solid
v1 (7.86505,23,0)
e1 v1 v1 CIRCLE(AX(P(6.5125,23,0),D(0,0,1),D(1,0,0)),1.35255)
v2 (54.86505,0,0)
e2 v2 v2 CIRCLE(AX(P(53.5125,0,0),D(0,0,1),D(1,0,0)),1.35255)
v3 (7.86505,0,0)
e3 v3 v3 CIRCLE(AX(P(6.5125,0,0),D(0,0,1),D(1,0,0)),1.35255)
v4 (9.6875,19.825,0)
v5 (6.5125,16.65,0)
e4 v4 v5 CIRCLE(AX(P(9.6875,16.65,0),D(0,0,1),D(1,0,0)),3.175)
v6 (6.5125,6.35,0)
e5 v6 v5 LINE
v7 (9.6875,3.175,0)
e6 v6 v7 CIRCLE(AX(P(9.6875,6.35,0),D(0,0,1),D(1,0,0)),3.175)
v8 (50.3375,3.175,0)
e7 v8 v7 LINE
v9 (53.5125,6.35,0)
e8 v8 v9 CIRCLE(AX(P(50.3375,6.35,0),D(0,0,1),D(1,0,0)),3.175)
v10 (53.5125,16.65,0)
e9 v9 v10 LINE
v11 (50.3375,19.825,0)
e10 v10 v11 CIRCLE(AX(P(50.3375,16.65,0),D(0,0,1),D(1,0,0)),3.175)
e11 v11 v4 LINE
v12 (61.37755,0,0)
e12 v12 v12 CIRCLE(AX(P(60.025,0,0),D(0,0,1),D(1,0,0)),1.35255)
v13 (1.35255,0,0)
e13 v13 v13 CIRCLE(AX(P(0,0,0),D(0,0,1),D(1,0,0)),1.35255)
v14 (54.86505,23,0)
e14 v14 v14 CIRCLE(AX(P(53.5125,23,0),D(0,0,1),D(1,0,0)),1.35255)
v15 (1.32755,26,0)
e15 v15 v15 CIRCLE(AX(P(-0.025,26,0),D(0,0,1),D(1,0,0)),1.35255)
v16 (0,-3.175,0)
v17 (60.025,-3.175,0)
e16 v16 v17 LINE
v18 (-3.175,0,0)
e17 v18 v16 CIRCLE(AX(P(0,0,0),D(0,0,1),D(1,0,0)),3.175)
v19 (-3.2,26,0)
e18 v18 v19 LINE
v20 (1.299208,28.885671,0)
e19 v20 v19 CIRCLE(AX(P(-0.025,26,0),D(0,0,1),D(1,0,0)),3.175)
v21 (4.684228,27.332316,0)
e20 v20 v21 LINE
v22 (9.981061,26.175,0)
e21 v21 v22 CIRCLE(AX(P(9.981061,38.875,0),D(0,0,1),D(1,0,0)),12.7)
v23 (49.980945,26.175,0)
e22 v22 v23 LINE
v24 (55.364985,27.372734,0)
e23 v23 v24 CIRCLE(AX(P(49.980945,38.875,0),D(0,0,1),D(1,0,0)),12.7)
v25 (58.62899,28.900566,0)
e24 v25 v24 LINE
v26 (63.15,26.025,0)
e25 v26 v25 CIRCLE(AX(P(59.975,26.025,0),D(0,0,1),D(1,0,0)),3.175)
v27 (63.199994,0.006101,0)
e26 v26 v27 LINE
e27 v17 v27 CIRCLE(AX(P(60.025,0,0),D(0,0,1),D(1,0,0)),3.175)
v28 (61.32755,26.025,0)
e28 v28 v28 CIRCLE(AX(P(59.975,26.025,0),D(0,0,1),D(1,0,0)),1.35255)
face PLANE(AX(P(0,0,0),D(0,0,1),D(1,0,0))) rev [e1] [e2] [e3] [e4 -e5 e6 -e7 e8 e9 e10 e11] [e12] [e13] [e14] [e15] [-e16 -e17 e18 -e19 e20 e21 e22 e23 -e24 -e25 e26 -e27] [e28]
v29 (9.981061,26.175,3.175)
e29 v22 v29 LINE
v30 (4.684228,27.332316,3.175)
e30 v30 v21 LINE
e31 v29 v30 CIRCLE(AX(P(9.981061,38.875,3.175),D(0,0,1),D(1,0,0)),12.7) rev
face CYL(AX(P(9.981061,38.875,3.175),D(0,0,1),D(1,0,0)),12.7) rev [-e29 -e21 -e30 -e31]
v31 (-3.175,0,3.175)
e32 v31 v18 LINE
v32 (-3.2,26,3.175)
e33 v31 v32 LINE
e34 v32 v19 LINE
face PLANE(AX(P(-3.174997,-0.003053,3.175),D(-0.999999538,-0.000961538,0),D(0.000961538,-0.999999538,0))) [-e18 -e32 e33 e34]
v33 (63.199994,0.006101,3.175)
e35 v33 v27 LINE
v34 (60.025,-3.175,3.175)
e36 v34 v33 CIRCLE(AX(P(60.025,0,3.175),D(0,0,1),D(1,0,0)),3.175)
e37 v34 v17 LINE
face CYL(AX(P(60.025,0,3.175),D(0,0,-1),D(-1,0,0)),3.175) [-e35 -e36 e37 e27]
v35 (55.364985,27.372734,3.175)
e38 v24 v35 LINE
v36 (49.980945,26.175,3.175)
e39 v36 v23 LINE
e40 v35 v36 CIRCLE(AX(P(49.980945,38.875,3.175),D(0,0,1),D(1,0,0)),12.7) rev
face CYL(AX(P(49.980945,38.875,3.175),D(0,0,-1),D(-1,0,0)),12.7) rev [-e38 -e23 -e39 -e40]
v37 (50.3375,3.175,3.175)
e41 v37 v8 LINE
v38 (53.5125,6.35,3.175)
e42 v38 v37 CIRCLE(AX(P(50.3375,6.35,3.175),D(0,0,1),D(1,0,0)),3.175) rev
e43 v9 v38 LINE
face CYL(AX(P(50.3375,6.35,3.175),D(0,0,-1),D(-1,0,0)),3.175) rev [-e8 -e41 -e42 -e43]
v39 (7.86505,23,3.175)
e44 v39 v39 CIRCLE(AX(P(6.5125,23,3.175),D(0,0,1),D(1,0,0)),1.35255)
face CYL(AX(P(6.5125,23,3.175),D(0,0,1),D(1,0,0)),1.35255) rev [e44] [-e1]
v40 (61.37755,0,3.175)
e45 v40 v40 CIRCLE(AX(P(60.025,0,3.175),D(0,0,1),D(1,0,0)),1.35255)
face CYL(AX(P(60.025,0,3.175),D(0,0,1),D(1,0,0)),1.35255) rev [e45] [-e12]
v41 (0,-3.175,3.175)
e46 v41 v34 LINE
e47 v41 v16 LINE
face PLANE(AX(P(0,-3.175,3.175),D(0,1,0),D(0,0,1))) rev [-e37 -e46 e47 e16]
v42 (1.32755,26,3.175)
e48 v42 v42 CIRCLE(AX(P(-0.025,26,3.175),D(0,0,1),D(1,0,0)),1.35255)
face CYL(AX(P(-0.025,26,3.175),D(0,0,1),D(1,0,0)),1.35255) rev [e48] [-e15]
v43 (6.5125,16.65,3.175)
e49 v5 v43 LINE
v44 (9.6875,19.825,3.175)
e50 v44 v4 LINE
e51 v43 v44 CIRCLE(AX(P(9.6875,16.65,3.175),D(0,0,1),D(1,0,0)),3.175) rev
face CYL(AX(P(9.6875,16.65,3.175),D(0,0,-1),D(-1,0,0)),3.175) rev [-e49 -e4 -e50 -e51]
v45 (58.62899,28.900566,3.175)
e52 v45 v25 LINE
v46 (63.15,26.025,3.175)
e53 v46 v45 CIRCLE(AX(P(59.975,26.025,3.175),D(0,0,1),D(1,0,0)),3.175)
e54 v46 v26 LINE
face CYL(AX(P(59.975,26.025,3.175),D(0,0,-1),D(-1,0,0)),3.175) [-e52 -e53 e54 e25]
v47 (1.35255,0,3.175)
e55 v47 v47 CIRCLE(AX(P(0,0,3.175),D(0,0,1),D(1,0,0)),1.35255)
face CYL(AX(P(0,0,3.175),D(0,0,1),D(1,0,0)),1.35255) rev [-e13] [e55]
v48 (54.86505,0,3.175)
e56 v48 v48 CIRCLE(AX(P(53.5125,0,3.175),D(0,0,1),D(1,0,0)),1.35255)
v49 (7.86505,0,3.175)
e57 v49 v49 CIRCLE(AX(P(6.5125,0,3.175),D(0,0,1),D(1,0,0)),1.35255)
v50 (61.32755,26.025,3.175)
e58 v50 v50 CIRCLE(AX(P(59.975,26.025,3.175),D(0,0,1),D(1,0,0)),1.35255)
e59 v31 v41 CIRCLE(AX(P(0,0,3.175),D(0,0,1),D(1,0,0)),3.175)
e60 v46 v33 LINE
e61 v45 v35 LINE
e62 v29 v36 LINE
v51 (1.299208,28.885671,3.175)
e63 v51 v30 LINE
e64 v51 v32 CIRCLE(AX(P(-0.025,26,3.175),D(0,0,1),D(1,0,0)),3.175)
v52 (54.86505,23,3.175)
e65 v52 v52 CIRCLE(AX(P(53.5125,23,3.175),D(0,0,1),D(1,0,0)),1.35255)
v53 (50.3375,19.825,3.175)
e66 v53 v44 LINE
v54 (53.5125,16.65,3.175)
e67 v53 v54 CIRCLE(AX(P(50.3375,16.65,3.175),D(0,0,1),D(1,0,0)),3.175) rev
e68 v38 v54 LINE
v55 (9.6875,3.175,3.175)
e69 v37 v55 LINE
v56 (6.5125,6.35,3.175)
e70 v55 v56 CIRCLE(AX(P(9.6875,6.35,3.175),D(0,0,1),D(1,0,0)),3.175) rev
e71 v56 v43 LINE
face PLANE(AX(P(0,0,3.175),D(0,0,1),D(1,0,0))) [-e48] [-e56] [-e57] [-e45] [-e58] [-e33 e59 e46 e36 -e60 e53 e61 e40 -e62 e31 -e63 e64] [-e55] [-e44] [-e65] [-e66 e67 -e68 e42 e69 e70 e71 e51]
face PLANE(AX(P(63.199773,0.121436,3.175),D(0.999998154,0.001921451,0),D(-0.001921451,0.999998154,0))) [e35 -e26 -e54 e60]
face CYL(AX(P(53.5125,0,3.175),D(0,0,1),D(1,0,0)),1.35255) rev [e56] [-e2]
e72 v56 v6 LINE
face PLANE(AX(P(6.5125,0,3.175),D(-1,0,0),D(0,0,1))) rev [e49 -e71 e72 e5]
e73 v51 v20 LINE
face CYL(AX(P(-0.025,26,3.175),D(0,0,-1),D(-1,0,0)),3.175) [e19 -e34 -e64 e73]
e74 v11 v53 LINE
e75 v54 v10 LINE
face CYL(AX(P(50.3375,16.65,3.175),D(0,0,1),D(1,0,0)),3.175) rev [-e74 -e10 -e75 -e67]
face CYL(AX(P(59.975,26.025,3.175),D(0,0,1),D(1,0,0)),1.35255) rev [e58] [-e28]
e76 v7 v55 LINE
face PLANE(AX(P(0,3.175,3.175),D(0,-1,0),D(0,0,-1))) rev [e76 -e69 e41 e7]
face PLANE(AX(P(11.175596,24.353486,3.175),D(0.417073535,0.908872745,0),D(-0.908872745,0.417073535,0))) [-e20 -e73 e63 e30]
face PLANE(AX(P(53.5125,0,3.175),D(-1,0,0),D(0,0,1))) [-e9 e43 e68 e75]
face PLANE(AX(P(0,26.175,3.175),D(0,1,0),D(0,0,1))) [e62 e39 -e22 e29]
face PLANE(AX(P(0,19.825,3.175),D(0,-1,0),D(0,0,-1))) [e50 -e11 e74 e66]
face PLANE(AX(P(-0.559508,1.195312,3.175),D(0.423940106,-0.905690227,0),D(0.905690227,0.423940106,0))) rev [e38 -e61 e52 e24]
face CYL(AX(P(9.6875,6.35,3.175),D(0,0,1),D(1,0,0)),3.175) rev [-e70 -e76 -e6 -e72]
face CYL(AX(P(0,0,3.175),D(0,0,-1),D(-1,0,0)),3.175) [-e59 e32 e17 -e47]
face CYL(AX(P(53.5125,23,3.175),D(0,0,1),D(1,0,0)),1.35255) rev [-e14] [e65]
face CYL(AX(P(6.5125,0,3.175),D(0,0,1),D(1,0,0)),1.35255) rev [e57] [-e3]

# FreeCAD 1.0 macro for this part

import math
import FreeCAD as App
import Part
import Sketcher
Q = App.Units.Quantity


def edges_at(feature, points):
    """Names of the edges that pass closest to the given points."""
    edges = feature.Shape.Edges
    near = lambda p: min(range(len(edges)), key=lambda i: edges[i].distToShape(Part.Vertex(*p))[0])
    return sorted({f"Edge{near(p) + 1}" for p in points})

doc = App.newDocument("Part")
body = doc.addObject("PartDesign::Body", "Body")

sketch1 = body.newObject("Sketcher::SketchObject", "Sketch")
sketch1.AttachmentSupport = (doc.getObject("XY_Plane"), [""])
sketch1.MapMode = "FlatFace"
sketch1.addGeometry(Part.LineSegment(App.Vector(58.62899, 28.900566, 0), App.Vector(52.806189, 26.175, 0)), False)
sketch1.addGeometry(Part.LineSegment(App.Vector(52.806189, 26.175, 0), App.Vector(7.206212, 26.175, 0)), False)
sketch1.addGeometry(Part.LineSegment(App.Vector(7.206212, 26.175, 0), App.Vector(1.299208, 28.885671, 0)), False)
sketch1.addGeometry(Part.ArcOfCircle(Part.Circle(App.Vector(-0.025, 26, 0), App.Vector(0, 0, 1), 3.175), math.radians(65.350035), math.radians(180)), False)
sketch1.addGeometry(Part.LineSegment(App.Vector(-3.2, 26, 0), App.Vector(-3.175, 0, 0)), False)
sketch1.addGeometry(Part.ArcOfCircle(Part.Circle(App.Vector(0, 0, 0), App.Vector(0, 0, 1), 3.175), math.radians(-180), math.radians(-90)), False)
sketch1.addGeometry(Part.LineSegment(App.Vector(0, -3.175, 0), App.Vector(60.025, -3.175, 0)), False)
sketch1.addGeometry(Part.ArcOfCircle(Part.Circle(App.Vector(60.025, 0, 0), App.Vector(0, 0, 1), 3.175), math.radians(-90), math.radians(0.110091)), False)
sketch1.addGeometry(Part.LineSegment(App.Vector(63.199994, 0.006101, 0), App.Vector(63.15, 26.025, 0)), False)
sketch1.addGeometry(Part.ArcOfCircle(Part.Circle(App.Vector(59.975, 26.025, 0), App.Vector(0, 0, 1), 3.175), math.radians(0), math.radians(115.083594)), False)
sketch1.addGeometry(Part.LineSegment(App.Vector(53.5125, 3.175, 0), App.Vector(6.5125, 3.175, 0)), False)
sketch1.addGeometry(Part.LineSegment(App.Vector(6.5125, 3.175, 0), App.Vector(6.5125, 19.825, 0)), False)
sketch1.addGeometry(Part.LineSegment(App.Vector(6.5125, 19.825, 0), App.Vector(53.5125, 19.825, 0)), False)
sketch1.addGeometry(Part.LineSegment(App.Vector(53.5125, 19.825, 0), App.Vector(53.5125, 3.175, 0)), False)
sketch1.addConstraint(Sketcher.Constraint("Coincident", 0, 2, 1, 1))
sketch1.addConstraint(Sketcher.Constraint("Coincident", 1, 2, 2, 1))
sketch1.addConstraint(Sketcher.Constraint("Tangent", 2, 2, 3, 1))
sketch1.addConstraint(Sketcher.Constraint("Coincident", 3, 2, 4, 1))
sketch1.addConstraint(Sketcher.Constraint("Coincident", 4, 2, 5, 1))
sketch1.addConstraint(Sketcher.Constraint("Tangent", 5, 2, 6, 1))
sketch1.addConstraint(Sketcher.Constraint("Tangent", 6, 2, 7, 1))
sketch1.addConstraint(Sketcher.Constraint("Tangent", 7, 2, 8, 1))
sketch1.addConstraint(Sketcher.Constraint("Coincident", 8, 2, 9, 1))
sketch1.addConstraint(Sketcher.Constraint("Tangent", 9, 2, 0, 1))
sketch1.addConstraint(Sketcher.Constraint("Coincident", 10, 2, 11, 1))
sketch1.addConstraint(Sketcher.Constraint("Coincident", 11, 2, 12, 1))
sketch1.addConstraint(Sketcher.Constraint("Coincident", 12, 2, 13, 1))
sketch1.addConstraint(Sketcher.Constraint("Coincident", 13, 2, 10, 1))
sketch1.addConstraint(Sketcher.Constraint("Horizontal", 1))
sketch1.addConstraint(Sketcher.Constraint("Horizontal", 6))
sketch1.addConstraint(Sketcher.Constraint("Horizontal", 10))
sketch1.addConstraint(Sketcher.Constraint("Vertical", 11))
sketch1.addConstraint(Sketcher.Constraint("Horizontal", 12))
sketch1.addConstraint(Sketcher.Constraint("Vertical", 13))
sketch1.addConstraint(Sketcher.Constraint("Coincident", 5, 3, -1, 1))
sketch1.addConstraint(Sketcher.Constraint("Equal", 3, 5))
sketch1.addConstraint(Sketcher.Constraint("Equal", 5, 7))
sketch1.addConstraint(Sketcher.Constraint("Equal", 7, 9))
sketch1.addConstraint(Sketcher.Constraint("PointOnObject", 4, 2, -1))
sketch1.addConstraint(Sketcher.Constraint("Horizontal", 9, 3, 8, 2))
sketch1.addConstraint(Sketcher.Constraint("Radius", 3, Q("0.125 in")))
sketch1.addConstraint(Sketcher.Constraint("DistanceY", 5, 2, 10, 2, Q("0.25 in")))
sketch1.addConstraint(Sketcher.Constraint("DistanceY", 11, 2, 1, 2, Q("0.25 in")))
sketch1.addConstraint(Sketcher.Constraint("DistanceX", 6, 1, 6, 2, 60.025))
sketch1.addConstraint(Sketcher.Constraint("DistanceX", 10, 2, 10, 1, 47.0))
sketch1.addConstraint(Sketcher.Constraint("DistanceY", 11, 1, 11, 2, 16.65))
sketch1.addConstraint(Sketcher.Constraint("DistanceX", 3, 3, -1, 1, 0.025))
sketch1.addConstraint(Sketcher.Constraint("DistanceY", -1, 1, 3, 3, 26.0))
sketch1.addConstraint(Sketcher.Constraint("DistanceX", -1, 1, 9, 3, 59.975))
sketch1.addConstraint(Sketcher.Constraint("DistanceY", -1, 1, 9, 3, 26.025))
sketch1.addConstraint(Sketcher.Constraint("DistanceY", -1, 1, 3, 2, 26.0))
sketch1.addConstraint(Sketcher.Constraint("DistanceX", -1, 1, 10, 2, 6.5125))
sketch1.addConstraint(Sketcher.Constraint("DistanceX", 0, 2, 9, 2, 5.822801))
sketch1.addConstraint(Sketcher.Constraint("DistanceX", 1, 2, 1, 1, 45.599977))
pad1 = body.newObject("PartDesign::Pad", "Pad")
pad1.Profile = sketch1
pad1.Length = Q("0.125 in")
doc.recompute()

fillet = body.newObject("PartDesign::Fillet", "Fillet")
fillet.Base = (pad1, edges_at(pad1, [
    (6.513, 3.175, 1.587),
    (53.513, 3.175, 1.587),
    (53.513, 19.825, 1.587),
    (6.513, 19.825, 1.587),
]))
fillet.Radius = Q("0.125 in")
doc.recompute()

fillet2 = body.newObject("PartDesign::Fillet", "Fillet001")
fillet2.Base = (fillet, edges_at(fillet, [(7.206, 26.175, 1.587), (52.806, 26.175, 1.587)]))
fillet2.Radius = Q("0.5 in")

sketch2 = body.newObject("Sketcher::SketchObject", "Sketch001")
sketch2.AttachmentSupport = (doc.getObject("XY_Plane"), [""])
sketch2.MapMode = "FlatFace"
sketch2.AttachmentOffset = App.Placement(App.Vector(0, 0, 0.125 * 25.4), App.Rotation())
sketch2.addGeometry(Part.Circle(App.Vector(6.5125, 23, 0), App.Vector(0, 0, 1), 1.35255), False)
sketch2.addGeometry(Part.Circle(App.Vector(53.5125, 23, 0), App.Vector(0, 0, 1), 1.35255), False)
sketch2.addGeometry(Part.Circle(App.Vector(53.5125, 0, 0), App.Vector(0, 0, 1), 1.35255), False)
sketch2.addGeometry(Part.Circle(App.Vector(6.5125, 0, 0), App.Vector(0, 0, 1), 1.35255), False)
sketch2.addConstraint(Sketcher.Constraint("Equal", 0, 1))
sketch2.addConstraint(Sketcher.Constraint("Equal", 1, 2))
sketch2.addConstraint(Sketcher.Constraint("Equal", 2, 3))
sketch2.addConstraint(Sketcher.Constraint("PointOnObject", 2, 3, -1))
sketch2.addConstraint(Sketcher.Constraint("PointOnObject", 3, 3, -1))
sketch2.addConstraint(Sketcher.Constraint("Horizontal", 0, 3, 1, 3))
sketch2.addConstraint(Sketcher.Constraint("Vertical", 1, 3, 2, 3))
sketch2.addConstraint(Sketcher.Constraint("Vertical", 0, 3, 3, 3))
sketch2.addConstraint(Sketcher.Constraint("Diameter", 0, Q("0.1065 in")))
sketch2.addConstraint(Sketcher.Constraint("DistanceX", -1, 1, 0, 3, 6.5125))
sketch2.addConstraint(Sketcher.Constraint("DistanceY", -1, 1, 0, 3, 23.0))
sketch2.addConstraint(Sketcher.Constraint("DistanceX", -1, 1, 1, 3, 53.5125))
doc.recompute()
hole = body.newObject("PartDesign::Hole", "Hole")
hole.Profile = sketch2
hole.ThreadType = "None"
hole.Diameter = Q("0.1065 in")
hole.DepthType = "ThroughAll"

sketch3 = body.newObject("Sketcher::SketchObject", "Sketch002")
sketch3.AttachmentSupport = (doc.getObject("XY_Plane"), [""])
sketch3.MapMode = "FlatFace"
sketch3.AttachmentOffset = App.Placement(App.Vector(0, 0, 0.125 * 25.4), App.Rotation())
sketch3.addGeometry(Part.Circle(App.Vector(-0.025, 26, 0), App.Vector(0, 0, 1), 1.35255), False)
sketch3.addGeometry(Part.Circle(App.Vector(0, 0, 0), App.Vector(0, 0, 1), 1.35255), False)
sketch3.addGeometry(Part.Circle(App.Vector(60.025, 0, 0), App.Vector(0, 0, 1), 1.35255), False)
sketch3.addGeometry(Part.Circle(App.Vector(59.975, 26.025, 0), App.Vector(0, 0, 1), 1.35255), False)
sketch3.addConstraint(Sketcher.Constraint("Coincident", 1, 3, -1, 1))
sketch3.addConstraint(Sketcher.Constraint("Equal", 0, 1))
sketch3.addConstraint(Sketcher.Constraint("Equal", 1, 2))
sketch3.addConstraint(Sketcher.Constraint("Equal", 2, 3))
sketch3.addConstraint(Sketcher.Constraint("PointOnObject", 2, 3, -1))
sketch3.addConstraint(Sketcher.Constraint("Diameter", 0, Q("0.1065 in")))
sketch3.addConstraint(Sketcher.Constraint("DistanceX", 0, 3, -1, 1, 0.025))
sketch3.addConstraint(Sketcher.Constraint("DistanceY", -1, 1, 0, 3, 26.0))
sketch3.addConstraint(Sketcher.Constraint("DistanceX", -1, 1, 2, 3, 60.025))
sketch3.addConstraint(Sketcher.Constraint("DistanceX", -1, 1, 3, 3, 59.975))
sketch3.addConstraint(Sketcher.Constraint("DistanceY", -1, 1, 3, 3, 26.025))
doc.recompute()
hole2 = body.newObject("PartDesign::Hole", "Hole001")
hole2.Profile = sketch3
hole2.ThreadType = "None"
hole2.Diameter = Q("0.1065 in")
hole2.DepthType = "ThroughAll"

doc.recompute()
